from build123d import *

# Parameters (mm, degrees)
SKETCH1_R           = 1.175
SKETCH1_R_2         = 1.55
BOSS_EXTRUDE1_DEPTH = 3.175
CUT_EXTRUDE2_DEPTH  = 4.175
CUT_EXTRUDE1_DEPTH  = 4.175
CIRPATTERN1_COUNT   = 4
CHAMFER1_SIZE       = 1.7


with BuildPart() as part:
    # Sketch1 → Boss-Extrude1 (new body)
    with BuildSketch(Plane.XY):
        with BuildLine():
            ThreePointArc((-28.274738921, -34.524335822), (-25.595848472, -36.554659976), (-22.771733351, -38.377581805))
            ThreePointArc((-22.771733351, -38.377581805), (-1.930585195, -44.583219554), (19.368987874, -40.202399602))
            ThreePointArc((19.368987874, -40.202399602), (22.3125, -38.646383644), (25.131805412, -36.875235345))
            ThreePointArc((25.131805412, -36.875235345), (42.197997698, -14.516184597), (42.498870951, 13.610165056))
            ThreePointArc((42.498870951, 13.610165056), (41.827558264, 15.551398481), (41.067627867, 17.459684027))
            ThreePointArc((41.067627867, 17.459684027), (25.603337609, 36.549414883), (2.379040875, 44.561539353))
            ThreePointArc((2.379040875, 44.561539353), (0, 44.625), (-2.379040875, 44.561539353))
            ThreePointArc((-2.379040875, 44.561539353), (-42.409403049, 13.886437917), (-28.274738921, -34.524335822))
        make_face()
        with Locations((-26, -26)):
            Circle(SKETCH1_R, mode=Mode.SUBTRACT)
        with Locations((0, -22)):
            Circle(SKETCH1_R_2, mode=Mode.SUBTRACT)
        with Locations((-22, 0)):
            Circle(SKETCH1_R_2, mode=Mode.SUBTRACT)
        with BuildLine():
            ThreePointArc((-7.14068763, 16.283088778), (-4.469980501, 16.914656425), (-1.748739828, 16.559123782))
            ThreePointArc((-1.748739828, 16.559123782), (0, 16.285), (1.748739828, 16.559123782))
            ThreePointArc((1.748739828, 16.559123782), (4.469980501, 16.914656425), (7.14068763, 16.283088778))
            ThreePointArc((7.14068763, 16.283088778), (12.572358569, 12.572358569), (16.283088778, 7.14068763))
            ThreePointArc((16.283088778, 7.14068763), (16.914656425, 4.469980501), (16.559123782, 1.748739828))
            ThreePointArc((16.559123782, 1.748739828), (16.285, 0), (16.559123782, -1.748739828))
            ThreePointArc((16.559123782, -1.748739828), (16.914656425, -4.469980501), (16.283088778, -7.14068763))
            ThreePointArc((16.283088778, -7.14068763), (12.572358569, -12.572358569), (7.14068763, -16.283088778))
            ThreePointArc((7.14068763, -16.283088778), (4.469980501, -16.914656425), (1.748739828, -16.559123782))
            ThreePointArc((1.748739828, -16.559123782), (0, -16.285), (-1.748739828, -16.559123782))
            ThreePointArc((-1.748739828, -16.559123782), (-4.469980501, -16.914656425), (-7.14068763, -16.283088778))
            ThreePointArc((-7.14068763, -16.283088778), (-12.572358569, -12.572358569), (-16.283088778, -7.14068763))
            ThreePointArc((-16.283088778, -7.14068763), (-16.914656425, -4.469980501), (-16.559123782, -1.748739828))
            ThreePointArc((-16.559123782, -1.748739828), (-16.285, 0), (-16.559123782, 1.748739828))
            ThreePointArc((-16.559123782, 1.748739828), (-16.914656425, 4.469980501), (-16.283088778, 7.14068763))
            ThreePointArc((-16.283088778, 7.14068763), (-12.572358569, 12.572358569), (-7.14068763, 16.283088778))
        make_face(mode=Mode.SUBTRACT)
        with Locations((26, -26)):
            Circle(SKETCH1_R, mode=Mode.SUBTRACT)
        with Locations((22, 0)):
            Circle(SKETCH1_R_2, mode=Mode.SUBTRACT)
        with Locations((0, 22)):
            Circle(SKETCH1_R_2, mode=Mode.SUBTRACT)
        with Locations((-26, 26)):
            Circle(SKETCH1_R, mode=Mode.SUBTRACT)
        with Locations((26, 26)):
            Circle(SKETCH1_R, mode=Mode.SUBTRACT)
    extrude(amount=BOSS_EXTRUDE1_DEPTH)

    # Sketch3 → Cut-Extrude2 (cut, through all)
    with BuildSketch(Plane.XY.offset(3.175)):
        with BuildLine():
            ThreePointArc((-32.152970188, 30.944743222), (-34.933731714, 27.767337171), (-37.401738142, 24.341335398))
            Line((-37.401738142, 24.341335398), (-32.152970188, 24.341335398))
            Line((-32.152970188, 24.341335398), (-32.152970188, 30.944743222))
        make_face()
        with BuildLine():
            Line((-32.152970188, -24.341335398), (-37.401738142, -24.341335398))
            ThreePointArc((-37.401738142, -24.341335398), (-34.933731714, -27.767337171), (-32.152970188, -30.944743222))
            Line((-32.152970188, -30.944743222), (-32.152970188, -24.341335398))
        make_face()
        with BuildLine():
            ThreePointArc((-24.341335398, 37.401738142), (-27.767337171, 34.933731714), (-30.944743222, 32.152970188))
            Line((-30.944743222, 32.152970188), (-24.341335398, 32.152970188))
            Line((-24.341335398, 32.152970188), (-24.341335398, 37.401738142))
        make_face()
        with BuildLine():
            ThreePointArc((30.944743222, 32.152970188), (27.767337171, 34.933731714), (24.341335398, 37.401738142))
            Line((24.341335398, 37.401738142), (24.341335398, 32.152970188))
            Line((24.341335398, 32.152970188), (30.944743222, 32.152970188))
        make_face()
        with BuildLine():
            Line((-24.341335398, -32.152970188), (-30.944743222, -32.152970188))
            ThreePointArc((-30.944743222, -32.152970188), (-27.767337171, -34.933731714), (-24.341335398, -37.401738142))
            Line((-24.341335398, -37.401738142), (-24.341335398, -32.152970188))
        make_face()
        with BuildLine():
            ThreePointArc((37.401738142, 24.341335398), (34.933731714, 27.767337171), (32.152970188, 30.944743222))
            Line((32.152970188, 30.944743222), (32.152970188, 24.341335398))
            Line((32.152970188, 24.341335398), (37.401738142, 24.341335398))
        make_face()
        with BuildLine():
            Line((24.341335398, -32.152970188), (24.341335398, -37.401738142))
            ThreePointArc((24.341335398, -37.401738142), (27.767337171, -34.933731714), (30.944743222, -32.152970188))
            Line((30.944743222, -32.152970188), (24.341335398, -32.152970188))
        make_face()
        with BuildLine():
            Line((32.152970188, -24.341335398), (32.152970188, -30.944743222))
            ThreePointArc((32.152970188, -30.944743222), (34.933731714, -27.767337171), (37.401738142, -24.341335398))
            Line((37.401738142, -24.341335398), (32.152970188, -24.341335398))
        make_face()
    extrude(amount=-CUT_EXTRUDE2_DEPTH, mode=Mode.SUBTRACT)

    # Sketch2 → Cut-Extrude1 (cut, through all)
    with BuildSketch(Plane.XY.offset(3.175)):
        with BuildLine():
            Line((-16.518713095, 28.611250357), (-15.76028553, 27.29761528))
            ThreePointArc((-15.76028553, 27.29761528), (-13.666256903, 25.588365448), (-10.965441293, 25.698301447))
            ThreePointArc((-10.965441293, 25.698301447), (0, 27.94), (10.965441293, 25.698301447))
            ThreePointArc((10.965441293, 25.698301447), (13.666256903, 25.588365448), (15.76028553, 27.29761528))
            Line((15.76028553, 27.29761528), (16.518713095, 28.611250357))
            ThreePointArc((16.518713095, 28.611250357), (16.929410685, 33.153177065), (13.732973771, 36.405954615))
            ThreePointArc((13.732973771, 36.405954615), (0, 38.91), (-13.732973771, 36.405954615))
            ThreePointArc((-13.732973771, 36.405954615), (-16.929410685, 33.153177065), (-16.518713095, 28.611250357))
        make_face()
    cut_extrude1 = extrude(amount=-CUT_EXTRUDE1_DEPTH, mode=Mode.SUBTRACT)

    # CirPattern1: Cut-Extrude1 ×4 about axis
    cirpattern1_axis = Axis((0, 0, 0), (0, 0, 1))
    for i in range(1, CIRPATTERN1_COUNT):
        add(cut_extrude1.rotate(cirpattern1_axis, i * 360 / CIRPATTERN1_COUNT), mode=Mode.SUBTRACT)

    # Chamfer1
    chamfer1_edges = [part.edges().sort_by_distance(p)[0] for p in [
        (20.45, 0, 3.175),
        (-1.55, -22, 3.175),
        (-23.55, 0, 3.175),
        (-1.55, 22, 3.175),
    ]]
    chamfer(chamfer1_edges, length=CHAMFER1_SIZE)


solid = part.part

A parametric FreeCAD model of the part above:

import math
import FreeCAD as App
import Part
import Sketcher

V = App.Vector
Q = App.Units.Quantity


def edges_at(feature, points):
    """Names of the edges that pass closest to the given points."""
    edges = feature.Shape.Edges
    near = lambda p: min(range(len(edges)), key=lambda i: edges[i].distToShape(Part.Vertex(*p))[0])
    return sorted({f"Edge{near(p) + 1}" for p in points})

doc = App.newDocument("Part")
body = doc.addObject("PartDesign::Body", "Body")

sketch1 = body.newObject("Sketcher::SketchObject", "Sketch")
sketch1.AttachmentSupport = (doc.getObject("XY_Plane"), [""])
sketch1.MapMode = "FlatFace"
sketch1.addGeometry([
    Part.ArcOfCircle(Part.Circle(V(0, 0, 0), V(0, 0, 1), 44.625), math.radians(-129.316789), math.radians(-120.683211)),
    Part.ArcOfCircle(Part.Circle(V(0, 0, 0), V(0, 0, 1), 44.625), math.radians(-120.683211), math.radians(-64.275844)),
    Part.ArcOfCircle(Part.Circle(V(0, 0, 0), V(0, 0, 1), 44.625), math.radians(-64.275844), math.radians(-55.724156)),
    Part.ArcOfCircle(Part.Circle(V(0, 0, 0), V(0, 0, 1), 44.625), math.radians(-55.724156), math.radians(17.757544)),
    Part.ArcOfCircle(Part.Circle(V(0.000001, 0, 0), V(0, 0, 1), 44.624999), math.radians(17.757544), math.radians(23.032514)),
    Part.ArcOfCircle(Part.Circle(V(0, 0, 0), V(0, 0, 1), 44.625), math.radians(23.032514), math.radians(86.944008)),
    Part.ArcOfCircle(Part.Circle(V(0, 0, 0), V(0, 0, 1), 44.625), math.radians(86.944008), math.radians(93.055992)),
    Part.ArcOfCircle(Part.Circle(V(0, 0, 0), V(0, 0, 1), 44.625), math.radians(93.055992), math.radians(230.683211)),
    Part.Circle(V(-26, -26, 0), V(0, 0, 1), 1.175),
    Part.Circle(V(0, -22, 0), V(0, 0, 1), 1.55),
    Part.Circle(V(26, -26, 0), V(0, 0, 1), 1.175),
    Part.ArcOfCircle(Part.Circle(V(0, 0, 0), V(0, 0, 1), 17.78), math.radians(113.679084), math.radians(156.320916)),
    Part.ArcOfCircle(Part.Circle(V(-4.080393, 9.304622, 0), V(0, 0, 1), 7.62), math.radians(72.182192), math.radians(113.679084)),
    Part.ArcOfCircle(Part.Circle(V(0, 22, 0), V(0, 0, 1), 5.715), math.radians(-107.817808), math.radians(-72.182192)),
    Part.ArcOfCircle(Part.Circle(V(4.080393, 9.304622, 0), V(0, 0, 1), 7.62), math.radians(66.320916), math.radians(107.817808)),
    Part.ArcOfCircle(Part.Circle(V(0, 0, 0), V(0, 0, 1), 17.78), math.radians(23.679084), math.radians(66.320916)),
    Part.ArcOfCircle(Part.Circle(V(9.304622, 4.080393, 0), V(0, 0, 1), 7.62), math.radians(-17.817808), math.radians(23.679084)),
    Part.ArcOfCircle(Part.Circle(V(22, 0, 0), V(0, 0, 1), 5.715), math.radians(162.182192), math.radians(197.817808)),
    Part.ArcOfCircle(Part.Circle(V(9.304622, -4.080393, 0), V(0, 0, 1), 7.62), math.radians(-23.679084), math.radians(17.817808)),
    Part.ArcOfCircle(Part.Circle(V(0, 0, 0), V(0, 0, 1), 17.78), math.radians(-66.320916), math.radians(-23.679084)),
    Part.ArcOfCircle(Part.Circle(V(4.080393, -9.304622, 0), V(0, 0, 1), 7.62), math.radians(-107.817808), math.radians(-66.320916)),
    Part.ArcOfCircle(Part.Circle(V(0, -22, 0), V(0, 0, 1), 5.715), math.radians(72.182192), math.radians(107.817808)),
    Part.ArcOfCircle(Part.Circle(V(-4.080393, -9.304622, 0), V(0, 0, 1), 7.62), math.radians(-113.679084), math.radians(-72.182192)),
    Part.ArcOfCircle(Part.Circle(V(0, 0, 0), V(0, 0, 1), 17.78), math.radians(-156.320916), math.radians(-113.679084)),
    Part.ArcOfCircle(Part.Circle(V(-9.304622, -4.080393, 0), V(0, 0, 1), 7.62), math.radians(162.182192), math.radians(203.679084)),
    Part.ArcOfCircle(Part.Circle(V(-22, 0, 0), V(0, 0, 1), 5.715), math.radians(-17.817808), math.radians(17.817808)),
    Part.ArcOfCircle(Part.Circle(V(-9.304622, 4.080393, 0), V(0, 0, 1), 7.62), math.radians(156.320916), math.radians(197.817808)),
    Part.Circle(V(-22, 0, 0), V(0, 0, 1), 1.55),
    Part.Circle(V(-26, 26, 0), V(0, 0, 1), 1.175),
    Part.Circle(V(22, 0, 0), V(0, 0, 1), 1.55),
    Part.Circle(V(0, 22, 0), V(0, 0, 1), 1.55),
    Part.Circle(V(26, 26, 0), V(0, 0, 1), 1.175),
], False)
sketch1.addConstraint([
    Sketcher.Constraint("Tangent", 0, 2, 1, 1),
    Sketcher.Constraint("Tangent", 1, 2, 2, 1),
    Sketcher.Constraint("Tangent", 2, 2, 3, 1),
    Sketcher.Constraint("Tangent", 3, 2, 4, 1),
    Sketcher.Constraint("Tangent", 4, 2, 5, 1),
    Sketcher.Constraint("Tangent", 5, 2, 6, 1),
    Sketcher.Constraint("Tangent", 6, 2, 7, 1),
    Sketcher.Constraint("Tangent", 7, 2, 0, 1),
    Sketcher.Constraint("Tangent", 11, 1, 12, 2),
    Sketcher.Constraint("Tangent", 12, 1, 13, 1),
    Sketcher.Constraint("Tangent", 13, 2, 14, 2),
    Sketcher.Constraint("Tangent", 14, 1, 15, 2),
    Sketcher.Constraint("Tangent", 15, 1, 16, 2),
    Sketcher.Constraint("Tangent", 16, 1, 17, 1),
    Sketcher.Constraint("Tangent", 17, 2, 18, 2),
    Sketcher.Constraint("Tangent", 18, 1, 19, 2),
    Sketcher.Constraint("Tangent", 19, 1, 20, 2),
    Sketcher.Constraint("Tangent", 20, 1, 21, 1),
    Sketcher.Constraint("Tangent", 21, 2, 22, 2),
    Sketcher.Constraint("Tangent", 22, 1, 23, 2),
    Sketcher.Constraint("Tangent", 23, 1, 24, 2),
    Sketcher.Constraint("Tangent", 24, 1, 25, 1),
    Sketcher.Constraint("Tangent", 25, 2, 26, 2),
    Sketcher.Constraint("Tangent", 26, 1, 11, 2),
    Sketcher.Constraint("Coincident", 0, 3, -1, 1),
    Sketcher.Constraint("Coincident", 2, 3, -1, 1),
    Sketcher.Constraint("Coincident", 4, 3, -1, 1),
    Sketcher.Constraint("Coincident", 11, 3, -1, 1),
    Sketcher.Constraint("Coincident", 15, 3, -1, 1),
    Sketcher.Constraint("Coincident", 19, 3, -1, 1),
    Sketcher.Constraint("Coincident", 23, 3, -1, 1),
    Sketcher.Constraint("Coincident", 21, 3, 9, 3),
    Sketcher.Constraint("Coincident", 27, 3, 25, 3),
    Sketcher.Constraint("Coincident", 29, 3, 17, 3),
    Sketcher.Constraint("Coincident", 30, 3, 13, 3),
    Sketcher.Constraint("Equal", 4, 5),
    Sketcher.Constraint("Equal", 8, 10),
    Sketcher.Constraint("Equal", 12, 14),
    Sketcher.Constraint("Equal", 11, 15),
    Sketcher.Constraint("Equal", 14, 16),
    Sketcher.Constraint("Equal", 13, 17),
    Sketcher.Constraint("Equal", 16, 18),
    Sketcher.Constraint("Equal", 15, 19),
    Sketcher.Constraint("Equal", 18, 20),
    Sketcher.Constraint("Equal", 17, 21),
    Sketcher.Constraint("Equal", 20, 22),
    Sketcher.Constraint("Equal", 19, 23),
    Sketcher.Constraint("Equal", 22, 24),
    Sketcher.Constraint("Equal", 21, 25),
    Sketcher.Constraint("Equal", 24, 26),
    Sketcher.Constraint("Equal", 9, 27),
    Sketcher.Constraint("Equal", 10, 28),
    Sketcher.Constraint("Equal", 27, 29),
    Sketcher.Constraint("Equal", 29, 30),
    Sketcher.Constraint("Equal", 28, 31),
    Sketcher.Constraint("Symmetric", 9, 3, 13, 3, -1, 1),
    Sketcher.Constraint("Symmetric", 17, 3, 25, 3, -1, 1),
    Sketcher.Constraint("Symmetric", 10, 3, 28, 3, -1, 1),
    Sketcher.Constraint("Symmetric", 8, 3, 31, 3, -1, 1),
    Sketcher.Constraint("Symmetric", 8, 3, 10, 3, -2),
    Sketcher.Constraint("PointOnObject", 9, 3, -2),
    Sketcher.Constraint("PointOnObject", 17, 3, -1),
    Sketcher.Constraint("Horizontal", 5, 2, 6, 2),
    Sketcher.Constraint("Radius", 11, Q("0.7 in")),
    Sketcher.Constraint("Radius", 12, Q("0.3 in")),
    Sketcher.Constraint("Radius", 13, Q("0.225 in")),
    Sketcher.Constraint("Diameter", 8, 2.35),
    Sketcher.Constraint("Diameter", 9, 3.1),
    Sketcher.Constraint("Radius", 0, 44.625),
    Sketcher.Constraint("DistanceX", 8, 3, -1, 1, 26.0),
    Sketcher.Constraint("DistanceY", 8, 3, -1, 1, 26.0),
    Sketcher.Constraint("DistanceY", 9, 3, -1, 1, 22.0),
    Sketcher.Constraint("DistanceX", -1, 1, 17, 3, 22.0),
    Sketcher.Constraint("DistanceY", 1, 2, -1, 1, 40.2024),
    Sketcher.Constraint("DistanceY", 0, 2, -1, 1, 38.377582),
    Sketcher.Constraint("DistanceX", -1, 1, 3, 2, 42.498871),
    Sketcher.Constraint("DistanceX", -1, 1, 5, 2, 2.379041),
    Sketcher.Constraint("DistanceX", 7, 2, -1, 1, 28.274739),
    Sketcher.Constraint("DistanceY", 3, 2, 4, 2, 3.849519),
    Sketcher.Constraint("DistanceX", -1, 1, 2, 2, 25.131805),
])
pad1 = body.newObject("PartDesign::Pad", "Pad")
pad1.Profile = sketch1
pad1.Length = Q("0.125 in")

sketch2 = body.newObject("Sketcher::SketchObject", "Sketch001")
sketch2.AttachmentSupport = (doc.getObject("XY_Plane"), [""])
sketch2.MapMode = "FlatFace"
sketch2.AttachmentOffset = App.Placement(V(0, 0, 0.125 * 25.4), App.Rotation())
sketch2.addGeometry([
    Part.ArcOfCircle(Part.Circle(V(0, 0, 0), V(0, 0, 1), 44.625), math.radians(136.096995), math.radians(146.943616)),
    Part.LineSegment(V(-37.401738, 24.341335, 0), V(-32.15297, 24.341335, 0)),
    Part.LineSegment(V(-32.15297, 24.341335, 0), V(-32.15297, 30.944743, 0)),
    Part.LineSegment(V(-32.15297, -24.341335, 0), V(-37.401738, -24.341335, 0)),
    Part.ArcOfCircle(Part.Circle(V(0, 0, 0), V(0, 0, 1), 44.625), math.radians(-146.943616), math.radians(-136.096995)),
    Part.LineSegment(V(-32.15297, -30.944743, 0), V(-32.15297, -24.341335, 0)),
    Part.ArcOfCircle(Part.Circle(V(0, 0, 0), V(0, 0, 1), 44.625), math.radians(123.056384), math.radians(133.903005)),
    Part.LineSegment(V(-30.944743, 32.15297, 0), V(-24.341335, 32.15297, 0)),
    Part.LineSegment(V(-24.341335, 32.15297, 0), V(-24.341335, 37.401738, 0)),
    Part.ArcOfCircle(Part.Circle(V(0, 0, 0), V(0, 0, 1), 44.625), math.radians(46.096995), math.radians(56.943616)),
    Part.LineSegment(V(24.341335, 37.401738, 0), V(24.341335, 32.15297, 0)),
    Part.LineSegment(V(24.341335, 32.15297, 0), V(30.944743, 32.15297, 0)),
    Part.LineSegment(V(-24.341335, -32.15297, 0), V(-30.944743, -32.15297, 0)),
    Part.ArcOfCircle(Part.Circle(V(0, 0, 0), V(0, 0, 1), 44.625), math.radians(-133.903005), math.radians(-123.056384)),
    Part.LineSegment(V(-24.341335, -37.401738, 0), V(-24.341335, -32.15297, 0)),
    Part.ArcOfCircle(Part.Circle(V(0, 0, 0), V(0, 0, 1), 44.625), math.radians(33.056384), math.radians(43.903005)),
    Part.LineSegment(V(32.15297, 30.944743, 0), V(32.15297, 24.341335, 0)),
    Part.LineSegment(V(32.15297, 24.341335, 0), V(37.401738, 24.341335, 0)),
    Part.LineSegment(V(24.341335, -32.15297, 0), V(24.341335, -37.401738, 0)),
    Part.ArcOfCircle(Part.Circle(V(0, 0, 0), V(0, 0, 1), 44.625), math.radians(-56.943616), math.radians(-46.096995)),
    Part.LineSegment(V(30.944743, -32.15297, 0), V(24.341335, -32.15297, 0)),
    Part.LineSegment(V(32.15297, -24.341335, 0), V(32.15297, -30.944743, 0)),
    Part.ArcOfCircle(Part.Circle(V(0, 0, 0), V(0, 0, 1), 44.625), math.radians(-43.903005), math.radians(-33.056384)),
    Part.LineSegment(V(37.401738, -24.341335, 0), V(32.15297, -24.341335, 0)),
], False)
sketch2.addConstraint([
    Sketcher.Constraint("Coincident", 0, 2, 1, 1),
    Sketcher.Constraint("Coincident", 1, 2, 2, 1),
    Sketcher.Constraint("Coincident", 2, 2, 0, 1),
    Sketcher.Constraint("Coincident", 3, 2, 4, 1),
    Sketcher.Constraint("Coincident", 4, 2, 5, 1),
    Sketcher.Constraint("Coincident", 5, 2, 3, 1),
    Sketcher.Constraint("Coincident", 6, 2, 7, 1),
    Sketcher.Constraint("Coincident", 7, 2, 8, 1),
    Sketcher.Constraint("Coincident", 8, 2, 6, 1),
    Sketcher.Constraint("Coincident", 9, 2, 10, 1),
    Sketcher.Constraint("Coincident", 10, 2, 11, 1),
    Sketcher.Constraint("Coincident", 11, 2, 9, 1),
    Sketcher.Constraint("Coincident", 12, 2, 13, 1),
    Sketcher.Constraint("Coincident", 13, 2, 14, 1),
    Sketcher.Constraint("Coincident", 14, 2, 12, 1),
    Sketcher.Constraint("Coincident", 15, 2, 16, 1),
    Sketcher.Constraint("Coincident", 16, 2, 17, 1),
    Sketcher.Constraint("Coincident", 17, 2, 15, 1),
    Sketcher.Constraint("Coincident", 18, 2, 19, 1),
    Sketcher.Constraint("Coincident", 19, 2, 20, 1),
    Sketcher.Constraint("Coincident", 20, 2, 18, 1),
    Sketcher.Constraint("Coincident", 21, 2, 22, 1),
    Sketcher.Constraint("Coincident", 22, 2, 23, 1),
    Sketcher.Constraint("Coincident", 23, 2, 21, 1),
    Sketcher.Constraint("Horizontal", 1),
    Sketcher.Constraint("Vertical", 2),
    Sketcher.Constraint("Horizontal", 3),
    Sketcher.Constraint("Vertical", 5),
    Sketcher.Constraint("Horizontal", 7),
    Sketcher.Constraint("Vertical", 8),
    Sketcher.Constraint("Vertical", 10),
    Sketcher.Constraint("Horizontal", 11),
    Sketcher.Constraint("Horizontal", 12),
    Sketcher.Constraint("Vertical", 14),
    Sketcher.Constraint("Vertical", 16),
    Sketcher.Constraint("Horizontal", 17),
    Sketcher.Constraint("Vertical", 18),
    Sketcher.Constraint("Horizontal", 20),
    Sketcher.Constraint("Vertical", 21),
    Sketcher.Constraint("Horizontal", 23),
    Sketcher.Constraint("Coincident", 0, 3, -1, 1),
    Sketcher.Constraint("Coincident", 4, 3, -1, 1),
    Sketcher.Constraint("Coincident", 6, 3, -1, 1),
    Sketcher.Constraint("Coincident", 9, 3, -1, 1),
    Sketcher.Constraint("Coincident", 13, 3, -1, 1),
    Sketcher.Constraint("Coincident", 15, 3, -1, 1),
    Sketcher.Constraint("Coincident", 19, 3, -1, 1),
    Sketcher.Constraint("Coincident", 22, 3, -1, 1),
    Sketcher.Constraint("Equal", 0, 4),
    Sketcher.Constraint("Equal", 4, 6),
    Sketcher.Constraint("Equal", 6, 9),
    Sketcher.Constraint("Equal", 9, 13),
    Sketcher.Constraint("Equal", 13, 15),
    Sketcher.Constraint("Equal", 15, 19),
    Sketcher.Constraint("Equal", 19, 22),
    Sketcher.Constraint("Symmetric", 10, 2, 14, 2, -1, 1),
    Sketcher.Constraint("Symmetric", 5, 2, 16, 2, -1, 1),
    Sketcher.Constraint("Symmetric", 7, 2, 20, 2, -1, 1),
    Sketcher.Constraint("Symmetric", 1, 2, 23, 2, -1, 1),
    Sketcher.Constraint("Symmetric", 7, 2, 10, 2, -2),
    Sketcher.Constraint("Symmetric", 1, 2, 16, 2, -2),
    Sketcher.Constraint("Equal", 20, 2),
    Sketcher.Constraint("Equal", 23, 8),
    Sketcher.Constraint("Radius", 0, 44.625),
    Sketcher.Constraint("DistanceX", 1, 1, 1, 2, 5.248768),
    Sketcher.Constraint("DistanceX", 7, 1, 7, 2, 6.603408),
])
pocket1 = body.newObject("PartDesign::Pocket", "Pocket")
pocket1.Profile = sketch2
pocket1.Type = "ThroughAll"

sketch3 = body.newObject("Sketcher::SketchObject", "Sketch002")
sketch3.AttachmentSupport = (doc.getObject("XY_Plane"), [""])
sketch3.MapMode = "FlatFace"
sketch3.AttachmentOffset = App.Placement(V(0, 0, 0.125 * 25.4), App.Rotation())
sketch3.addGeometry([
    Part.LineSegment(V(-16.518713, 28.61125, 0), V(-15.760286, 27.297615, 0)),
    Part.ArcOfCircle(Part.Circle(V(-12.460729, 29.202615, 0), V(0, 0, 1), 3.81), math.radians(-150), math.radians(-66.892103)),
    Part.ArcOfCircle(Part.Circle(V(0, 0, 0), V(0, 0, 1), 27.94), math.radians(66.892103), math.radians(113.107897)),
    Part.ArcOfCircle(Part.Circle(V(12.460729, 29.202615, 0), V(0, 0, 1), 3.81), math.radians(-113.107897), math.radians(-30)),
    Part.LineSegment(V(15.760286, 27.297615, 0), V(16.518713, 28.61125, 0)),
    Part.ArcOfCircle(Part.Circle(V(11.816707, 31.325955, 0), V(0, 0, 1), 5.429409), math.radians(-30), math.radians(69.332632)),
    Part.ArcOfCircle(Part.Circle(V(0, 0, 0), V(0, 0, 1), 38.91), math.radians(69.332632), math.radians(110.667368)),
    Part.ArcOfCircle(Part.Circle(V(-11.816707, 31.325955, 0), V(0, 0, 1), 5.429409), math.radians(110.667368), math.radians(210)),
], False)
sketch3.addConstraint([
    Sketcher.Constraint("Tangent", 0, 2, 1, 1),
    Sketcher.Constraint("Tangent", 1, 2, 2, 2),
    Sketcher.Constraint("Tangent", 2, 1, 3, 1),
    Sketcher.Constraint("Tangent", 3, 2, 4, 1),
    Sketcher.Constraint("Tangent", 4, 2, 5, 1),
    Sketcher.Constraint("Tangent", 5, 2, 6, 1),
    Sketcher.Constraint("Tangent", 6, 2, 7, 1),
    Sketcher.Constraint("Tangent", 7, 2, 0, 1),
    Sketcher.Constraint("Coincident", 2, 3, -1, 1),
    Sketcher.Constraint("Coincident", 6, 3, -1, 1),
    Sketcher.Constraint("Equal", 1, 3),
    Sketcher.Constraint("Equal", 5, 7),
    Sketcher.Constraint("Symmetric", 0, 2, 3, 2, -2),
    Sketcher.Constraint("Radius", 2, Q("1.1 in")),
    Sketcher.Constraint("Radius", 1, Q("0.15 in")),
    Sketcher.Constraint("Angle", 0, Q("-60 deg")),
    Sketcher.Constraint("DistanceY", 5, 3, 5, 2, Q("0.2 in")),
    Sketcher.Constraint("Radius", 6, 38.91),
    Sketcher.Constraint("Radius", 5, 5.429409),
])
pocket2 = body.newObject("PartDesign::Pocket", "Pocket001")
pocket2.Profile = sketch3
pocket2.Type = "ThroughAll"
doc.recompute()

polarpattern = body.newObject("PartDesign::PolarPattern", "PolarPattern")
polarpattern.Originals = [pocket2]
polarpattern.Axis = (doc.getObject("Z_Axis"), [""])
polarpattern.Angle = 360
polarpattern.Occurrences = 4
body.Tip = polarpattern
doc.recompute()

chamfer = body.newObject("PartDesign::Chamfer", "Chamfer")
chamfer.Base = (polarpattern, edges_at(polarpattern, [
    (20.45, 0, 3.175),
    (-1.55, -22, 3.175),
    (-23.55, 0, 3.175),
    (-1.55, 22, 3.175),
]))
chamfer.Size = 1.7

doc.recompute()
